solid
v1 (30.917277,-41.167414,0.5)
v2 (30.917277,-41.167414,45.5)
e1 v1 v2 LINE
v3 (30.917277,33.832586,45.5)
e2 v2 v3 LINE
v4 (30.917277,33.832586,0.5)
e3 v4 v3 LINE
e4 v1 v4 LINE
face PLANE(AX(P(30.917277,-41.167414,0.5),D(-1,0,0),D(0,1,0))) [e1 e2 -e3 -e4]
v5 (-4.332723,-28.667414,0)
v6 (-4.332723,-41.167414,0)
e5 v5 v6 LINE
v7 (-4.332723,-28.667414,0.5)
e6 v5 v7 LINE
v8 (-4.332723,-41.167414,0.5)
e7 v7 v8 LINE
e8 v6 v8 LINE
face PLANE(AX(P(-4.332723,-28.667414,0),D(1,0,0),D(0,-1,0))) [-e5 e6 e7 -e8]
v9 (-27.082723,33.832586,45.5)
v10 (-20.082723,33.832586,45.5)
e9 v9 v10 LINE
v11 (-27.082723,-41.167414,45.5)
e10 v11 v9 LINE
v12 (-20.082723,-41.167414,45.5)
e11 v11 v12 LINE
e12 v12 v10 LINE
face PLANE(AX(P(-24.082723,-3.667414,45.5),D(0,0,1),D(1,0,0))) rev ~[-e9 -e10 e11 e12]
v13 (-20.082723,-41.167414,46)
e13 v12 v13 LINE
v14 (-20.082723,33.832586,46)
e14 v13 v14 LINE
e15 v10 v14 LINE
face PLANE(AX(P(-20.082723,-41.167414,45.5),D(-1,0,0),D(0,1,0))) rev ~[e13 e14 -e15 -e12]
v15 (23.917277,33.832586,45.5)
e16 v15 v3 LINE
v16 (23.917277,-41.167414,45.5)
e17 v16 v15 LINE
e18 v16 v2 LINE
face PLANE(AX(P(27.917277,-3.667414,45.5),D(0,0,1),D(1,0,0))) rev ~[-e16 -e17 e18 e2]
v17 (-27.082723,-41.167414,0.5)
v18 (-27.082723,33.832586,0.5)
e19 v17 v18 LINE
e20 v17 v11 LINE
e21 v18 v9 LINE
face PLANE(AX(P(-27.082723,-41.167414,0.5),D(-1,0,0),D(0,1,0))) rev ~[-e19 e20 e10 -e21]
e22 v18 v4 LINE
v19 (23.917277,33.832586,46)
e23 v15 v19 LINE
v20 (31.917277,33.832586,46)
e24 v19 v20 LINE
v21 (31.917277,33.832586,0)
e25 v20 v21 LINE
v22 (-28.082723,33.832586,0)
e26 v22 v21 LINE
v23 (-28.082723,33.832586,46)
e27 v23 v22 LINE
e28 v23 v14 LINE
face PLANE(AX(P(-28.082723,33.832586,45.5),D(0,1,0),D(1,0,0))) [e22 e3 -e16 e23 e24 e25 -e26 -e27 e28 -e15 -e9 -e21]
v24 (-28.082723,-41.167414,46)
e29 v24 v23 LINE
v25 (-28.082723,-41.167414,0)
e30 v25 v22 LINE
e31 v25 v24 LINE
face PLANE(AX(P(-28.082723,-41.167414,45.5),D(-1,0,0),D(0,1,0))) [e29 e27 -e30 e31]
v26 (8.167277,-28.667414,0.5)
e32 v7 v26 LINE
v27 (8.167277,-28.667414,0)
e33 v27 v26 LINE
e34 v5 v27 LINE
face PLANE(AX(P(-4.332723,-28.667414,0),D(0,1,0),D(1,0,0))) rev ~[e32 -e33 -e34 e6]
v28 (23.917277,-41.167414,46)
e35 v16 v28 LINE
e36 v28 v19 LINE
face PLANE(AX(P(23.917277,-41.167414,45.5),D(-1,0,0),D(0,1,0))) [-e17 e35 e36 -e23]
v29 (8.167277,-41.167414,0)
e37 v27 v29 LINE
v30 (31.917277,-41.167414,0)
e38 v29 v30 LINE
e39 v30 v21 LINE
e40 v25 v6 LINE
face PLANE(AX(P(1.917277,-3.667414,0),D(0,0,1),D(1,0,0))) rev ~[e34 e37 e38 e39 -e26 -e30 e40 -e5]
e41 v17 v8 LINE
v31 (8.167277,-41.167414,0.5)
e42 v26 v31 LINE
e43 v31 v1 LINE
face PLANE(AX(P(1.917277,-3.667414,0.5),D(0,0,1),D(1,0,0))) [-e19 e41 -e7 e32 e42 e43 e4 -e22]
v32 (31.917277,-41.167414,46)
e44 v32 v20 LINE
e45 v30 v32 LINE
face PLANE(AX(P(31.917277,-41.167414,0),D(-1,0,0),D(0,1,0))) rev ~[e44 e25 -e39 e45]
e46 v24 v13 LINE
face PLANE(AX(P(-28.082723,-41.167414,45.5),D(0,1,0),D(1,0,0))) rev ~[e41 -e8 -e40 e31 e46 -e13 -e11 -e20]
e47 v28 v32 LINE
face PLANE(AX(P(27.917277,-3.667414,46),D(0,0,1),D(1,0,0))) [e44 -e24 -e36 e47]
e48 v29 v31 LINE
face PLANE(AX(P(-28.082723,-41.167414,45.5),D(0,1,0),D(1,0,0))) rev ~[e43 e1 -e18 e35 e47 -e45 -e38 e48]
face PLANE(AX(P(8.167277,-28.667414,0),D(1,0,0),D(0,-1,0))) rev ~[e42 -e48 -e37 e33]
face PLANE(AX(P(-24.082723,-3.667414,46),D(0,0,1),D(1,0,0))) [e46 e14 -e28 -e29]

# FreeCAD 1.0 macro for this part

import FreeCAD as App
import Part
import Sketcher

V = App.Vector


def add_polygon(sketch, points):
    """Adds a closed chain of lines whose ends are joined by coincident constraints."""
    first, n = sketch.GeometryCount, len(points)
    for a, b in zip(points, points[1:] + points[:1]):
        sketch.addGeometry(Part.LineSegment(App.Vector(*a, 0), App.Vector(*b, 0)), False)
    for i in range(n):
        sketch.addConstraint(Sketcher.Constraint("Coincident", first + i, 2, first + (i + 1) % n, 1))

doc = App.newDocument("Part")
body = doc.addObject("PartDesign::Body", "Body")

# Sketch on XY plane
sketch1 = body.newObject("Sketcher::SketchObject", "Sketch")
sketch1.AttachmentSupport = (doc.getObject("XY_Plane"), [""])
sketch1.MapMode = "FlatFace"
add_polygon(sketch1, [(-28, 34), (-28, -41), (32, -41), (32, 34)])  # lines 0-3
sketch1.addConstraint(Sketcher.Constraint("Vertical", 0))
sketch1.addConstraint(Sketcher.Constraint("Horizontal", 1))
sketch1.addConstraint(Sketcher.Constraint("Vertical", 2))
sketch1.addConstraint(Sketcher.Constraint("Horizontal", 3))
sketch1.addConstraint(Sketcher.Constraint("DistanceX", 1, 1, 1, 2, 60.0))
sketch1.addConstraint(Sketcher.Constraint("DistanceY", 0, 2, 0, 1, 75.0))
sketch1.addConstraint(Sketcher.Constraint("DistanceX", 0, 2, -1, 1, 28.082723))
sketch1.addConstraint(Sketcher.Constraint("DistanceY", 0, 2, -1, 1, 41.167414))
pad1 = body.newObject("PartDesign::Pad", "Pad")
pad1.Profile = sketch1
pad1.Length = 0.5

# Sketch on XY plane
sketch2 = body.newObject("Sketcher::SketchObject", "Sketch001")
sketch2.AttachmentSupport = (doc.getObject("XY_Plane"), [""])
sketch2.MapMode = "FlatFace"
sketch2.AttachmentOffset = App.Placement(V(0, 0, 0.5), App.Rotation())
add_polygon(sketch2, [(-28.1, 33.8), (-28.1, -41.2), (-27.1, -41.2), (-27.1, 33.8)])  # lines 0-3
add_polygon(sketch2, [(30.9, 33.8), (30.9, -41.2), (31.9, -41.2), (31.9, 33.8)])  # lines 4-7
sketch2.addConstraint(Sketcher.Constraint("Vertical", 0))
sketch2.addConstraint(Sketcher.Constraint("Horizontal", 1))
sketch2.addConstraint(Sketcher.Constraint("Vertical", 2))
sketch2.addConstraint(Sketcher.Constraint("Horizontal", 3))
sketch2.addConstraint(Sketcher.Constraint("Vertical", 4))
sketch2.addConstraint(Sketcher.Constraint("Horizontal", 5))
sketch2.addConstraint(Sketcher.Constraint("Vertical", 6))
sketch2.addConstraint(Sketcher.Constraint("Horizontal", 7))
sketch2.addConstraint(Sketcher.Constraint("Horizontal", 1, 2, 4, 2))
sketch2.addConstraint(Sketcher.Constraint("Horizontal", 3, 2, 6, 2))
sketch2.addConstraint(Sketcher.Constraint("Equal", 3, 5))
sketch2.addConstraint(Sketcher.Constraint("DistanceX", 1, 1, 1, 2, 1.0))
sketch2.addConstraint(Sketcher.Constraint("DistanceY", 0, 2, 0, 1, 75.0))
sketch2.addConstraint(Sketcher.Constraint("DistanceX", 1, 2, 4, 2, 58.0))
sketch2.addConstraint(Sketcher.Constraint("DistanceX", 0, 2, -1, 1, 28.082723))
sketch2.addConstraint(Sketcher.Constraint("DistanceY", 0, 2, -1, 1, 41.167414))
pad2 = body.newObject("PartDesign::Pad", "Pad001")
pad2.Profile = sketch2
pad2.Length = 45

# Sketch on XY plane
sketch3 = body.newObject("Sketcher::SketchObject", "Sketch002")
sketch3.AttachmentSupport = (doc.getObject("XY_Plane"), [""])
sketch3.MapMode = "FlatFace"
sketch3.AttachmentOffset = App.Placement(V(0, 0, 45.5), App.Rotation())
add_polygon(sketch3, [(-28, 34), (-28, -41), (-20, -41), (-20, 34)])  # lines 0-3
add_polygon(sketch3, [(24, 34), (24, -41), (32, -41), (32, 34)])  # lines 4-7
sketch3.addConstraint(Sketcher.Constraint("Vertical", 0))
sketch3.addConstraint(Sketcher.Constraint("Horizontal", 1))
sketch3.addConstraint(Sketcher.Constraint("Vertical", 2))
sketch3.addConstraint(Sketcher.Constraint("Horizontal", 3))
sketch3.addConstraint(Sketcher.Constraint("Vertical", 4))
sketch3.addConstraint(Sketcher.Constraint("Horizontal", 5))
sketch3.addConstraint(Sketcher.Constraint("Vertical", 6))
sketch3.addConstraint(Sketcher.Constraint("Horizontal", 7))
sketch3.addConstraint(Sketcher.Constraint("Horizontal", 1, 2, 4, 2))
sketch3.addConstraint(Sketcher.Constraint("Horizontal", 3, 2, 6, 2))
sketch3.addConstraint(Sketcher.Constraint("Equal", 3, 5))
sketch3.addConstraint(Sketcher.Constraint("DistanceX", 1, 1, 1, 2, 8.0))
sketch3.addConstraint(Sketcher.Constraint("DistanceY", 0, 2, 0, 1, 75.0))
sketch3.addConstraint(Sketcher.Constraint("DistanceX", 1, 2, 4, 2, 44.0))
sketch3.addConstraint(Sketcher.Constraint("DistanceX", 0, 2, -1, 1, 28.082723))
sketch3.addConstraint(Sketcher.Constraint("DistanceY", 0, 2, -1, 1, 41.167414))
pad3 = body.newObject("PartDesign::Pad", "Pad002")
pad3.Profile = sketch3
pad3.Length = 0.5

# Sketch on XY plane
sketch4 = body.newObject("Sketcher::SketchObject", "Sketch003")
sketch4.AttachmentSupport = (doc.getObject("XY_Plane"), [""])
sketch4.MapMode = "FlatFace"
add_polygon(sketch4, [(-4, -41), (-4, -29), (8, -29), (8, -41)])  # lines 0-3
sketch4.addConstraint(Sketcher.Constraint("Vertical", 0))
sketch4.addConstraint(Sketcher.Constraint("Horizontal", 1))
sketch4.addConstraint(Sketcher.Constraint("Vertical", 2))
sketch4.addConstraint(Sketcher.Constraint("Horizontal", 3))
sketch4.addConstraint(Sketcher.Constraint("Equal", 3, 0))
sketch4.addConstraint(Sketcher.Constraint("DistanceX", 1, 1, 1, 2, 12.5))
sketch4.addConstraint(Sketcher.Constraint("DistanceX", 0, 2, -1, 1, 4.332723))
sketch4.addConstraint(Sketcher.Constraint("DistanceY", 0, 2, -1, 1, 28.667414))
pocket1 = body.newObject("PartDesign::Pocket", "Pocket")
pocket1.Profile = sketch4
pocket1.Type = "ThroughAll"
pocket1.Reversed = True

doc.recompute()
